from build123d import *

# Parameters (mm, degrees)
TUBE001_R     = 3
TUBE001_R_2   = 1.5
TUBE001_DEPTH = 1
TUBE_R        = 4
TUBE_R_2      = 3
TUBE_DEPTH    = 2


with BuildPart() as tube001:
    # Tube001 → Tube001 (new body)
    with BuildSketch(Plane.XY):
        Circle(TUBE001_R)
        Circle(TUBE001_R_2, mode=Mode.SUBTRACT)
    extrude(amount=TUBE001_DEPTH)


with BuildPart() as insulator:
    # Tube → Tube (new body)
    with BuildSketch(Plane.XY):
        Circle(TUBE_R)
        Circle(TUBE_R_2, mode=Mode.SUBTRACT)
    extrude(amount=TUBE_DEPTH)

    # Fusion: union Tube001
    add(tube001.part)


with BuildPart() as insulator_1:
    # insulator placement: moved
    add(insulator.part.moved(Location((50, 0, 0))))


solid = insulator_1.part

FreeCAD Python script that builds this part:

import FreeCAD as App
import Part
import Sketcher
Q = App.Units.Quantity

doc = App.newDocument("Part")
params = doc.addObject("Spreadsheet::Sheet", "Params")
for row, (alias, value) in enumerate([
    ("sketch1_diameter", "6 mm"),
    ("sketch1_diameter2", "3 mm"),
    ("pad1_length", "1 mm"),
    ("sketch2_diameter", "8 mm"),
    ("sketch2_diameter2", "6 mm"),
    ("pad2_length", "2 mm"),
], start=1):
    params.set(f"A{row}", alias)
    params.set(f"B{row}", "=" + value)
    params.setAlias(f"B{row}", alias)

body = doc.addObject("PartDesign::Body", "Body")

sketch1 = body.newObject("Sketcher::SketchObject", "Sketch")
sketch1.AttachmentSupport = (doc.getObject("XY_Plane"), [""])
sketch1.MapMode = "FlatFace"
sketch1.addGeometry([
    Part.Circle(App.Vector(0, 0, 0), App.Vector(0, 0, 1), 3),
    Part.Circle(App.Vector(0, 0, 0), App.Vector(0, 0, 1), 1.5),
], False)
sketch1.addConstraint([
    Sketcher.Constraint("Coincident", 0, 3, -1, 1),
    Sketcher.Constraint("Coincident", 1, 3, -1, 1),
    Sketcher.Constraint("Diameter", 0, Q("6 mm")),
    Sketcher.Constraint("Diameter", 1, Q("3 mm")),
])
sketch1.setExpression("Constraints[2]", "Params.sketch1_diameter")
sketch1.setExpression("Constraints[3]", "Params.sketch1_diameter2")
pad1 = body.newObject("PartDesign::Pad", "Pad")
pad1.Profile = sketch1
pad1.setExpression("Length", "Params.pad1_length")
body2 = doc.addObject("PartDesign::Body", "Body001")

sketch2 = body2.newObject("Sketcher::SketchObject", "Sketch001")
sketch2.AttachmentSupport = (doc.getObject("XY_Plane001"), [""])
sketch2.MapMode = "FlatFace"
sketch2.addGeometry([
    Part.Circle(App.Vector(0, 0, 0), App.Vector(0, 0, 1), 4),
    Part.Circle(App.Vector(0, 0, 0), App.Vector(0, 0, 1), 3),
], False)
sketch2.addConstraint([
    Sketcher.Constraint("Coincident", 0, 3, -1, 1),
    Sketcher.Constraint("Coincident", 1, 3, -1, 1),
    Sketcher.Constraint("Diameter", 0, Q("8 mm")),
    Sketcher.Constraint("Diameter", 1, Q("6 mm")),
])
sketch2.setExpression("Constraints[2]", "Params.sketch2_diameter")
sketch2.setExpression("Constraints[3]", "Params.sketch2_diameter2")
pad2 = body2.newObject("PartDesign::Pad", "Pad001")
pad2.Profile = sketch2
pad2.setExpression("Length", "Params.pad2_length")
doc.recompute()

boolean = body2.newObject("PartDesign::Boolean", "Boolean")
boolean.Type = "Fuse"
boolean.addObjects([body])
body3 = doc.addObject("PartDesign::Body", "Body002")
doc.recompute()

body2.Placement = App.Placement(App.Vector(50, 0, 0), App.Rotation(App.Vector(0, 0, 1), 0))
boolean2 = body3.newObject("PartDesign::Boolean", "Boolean001")
boolean2.Type = "Fuse"
boolean2.addObjects([body2])

doc.recompute()
